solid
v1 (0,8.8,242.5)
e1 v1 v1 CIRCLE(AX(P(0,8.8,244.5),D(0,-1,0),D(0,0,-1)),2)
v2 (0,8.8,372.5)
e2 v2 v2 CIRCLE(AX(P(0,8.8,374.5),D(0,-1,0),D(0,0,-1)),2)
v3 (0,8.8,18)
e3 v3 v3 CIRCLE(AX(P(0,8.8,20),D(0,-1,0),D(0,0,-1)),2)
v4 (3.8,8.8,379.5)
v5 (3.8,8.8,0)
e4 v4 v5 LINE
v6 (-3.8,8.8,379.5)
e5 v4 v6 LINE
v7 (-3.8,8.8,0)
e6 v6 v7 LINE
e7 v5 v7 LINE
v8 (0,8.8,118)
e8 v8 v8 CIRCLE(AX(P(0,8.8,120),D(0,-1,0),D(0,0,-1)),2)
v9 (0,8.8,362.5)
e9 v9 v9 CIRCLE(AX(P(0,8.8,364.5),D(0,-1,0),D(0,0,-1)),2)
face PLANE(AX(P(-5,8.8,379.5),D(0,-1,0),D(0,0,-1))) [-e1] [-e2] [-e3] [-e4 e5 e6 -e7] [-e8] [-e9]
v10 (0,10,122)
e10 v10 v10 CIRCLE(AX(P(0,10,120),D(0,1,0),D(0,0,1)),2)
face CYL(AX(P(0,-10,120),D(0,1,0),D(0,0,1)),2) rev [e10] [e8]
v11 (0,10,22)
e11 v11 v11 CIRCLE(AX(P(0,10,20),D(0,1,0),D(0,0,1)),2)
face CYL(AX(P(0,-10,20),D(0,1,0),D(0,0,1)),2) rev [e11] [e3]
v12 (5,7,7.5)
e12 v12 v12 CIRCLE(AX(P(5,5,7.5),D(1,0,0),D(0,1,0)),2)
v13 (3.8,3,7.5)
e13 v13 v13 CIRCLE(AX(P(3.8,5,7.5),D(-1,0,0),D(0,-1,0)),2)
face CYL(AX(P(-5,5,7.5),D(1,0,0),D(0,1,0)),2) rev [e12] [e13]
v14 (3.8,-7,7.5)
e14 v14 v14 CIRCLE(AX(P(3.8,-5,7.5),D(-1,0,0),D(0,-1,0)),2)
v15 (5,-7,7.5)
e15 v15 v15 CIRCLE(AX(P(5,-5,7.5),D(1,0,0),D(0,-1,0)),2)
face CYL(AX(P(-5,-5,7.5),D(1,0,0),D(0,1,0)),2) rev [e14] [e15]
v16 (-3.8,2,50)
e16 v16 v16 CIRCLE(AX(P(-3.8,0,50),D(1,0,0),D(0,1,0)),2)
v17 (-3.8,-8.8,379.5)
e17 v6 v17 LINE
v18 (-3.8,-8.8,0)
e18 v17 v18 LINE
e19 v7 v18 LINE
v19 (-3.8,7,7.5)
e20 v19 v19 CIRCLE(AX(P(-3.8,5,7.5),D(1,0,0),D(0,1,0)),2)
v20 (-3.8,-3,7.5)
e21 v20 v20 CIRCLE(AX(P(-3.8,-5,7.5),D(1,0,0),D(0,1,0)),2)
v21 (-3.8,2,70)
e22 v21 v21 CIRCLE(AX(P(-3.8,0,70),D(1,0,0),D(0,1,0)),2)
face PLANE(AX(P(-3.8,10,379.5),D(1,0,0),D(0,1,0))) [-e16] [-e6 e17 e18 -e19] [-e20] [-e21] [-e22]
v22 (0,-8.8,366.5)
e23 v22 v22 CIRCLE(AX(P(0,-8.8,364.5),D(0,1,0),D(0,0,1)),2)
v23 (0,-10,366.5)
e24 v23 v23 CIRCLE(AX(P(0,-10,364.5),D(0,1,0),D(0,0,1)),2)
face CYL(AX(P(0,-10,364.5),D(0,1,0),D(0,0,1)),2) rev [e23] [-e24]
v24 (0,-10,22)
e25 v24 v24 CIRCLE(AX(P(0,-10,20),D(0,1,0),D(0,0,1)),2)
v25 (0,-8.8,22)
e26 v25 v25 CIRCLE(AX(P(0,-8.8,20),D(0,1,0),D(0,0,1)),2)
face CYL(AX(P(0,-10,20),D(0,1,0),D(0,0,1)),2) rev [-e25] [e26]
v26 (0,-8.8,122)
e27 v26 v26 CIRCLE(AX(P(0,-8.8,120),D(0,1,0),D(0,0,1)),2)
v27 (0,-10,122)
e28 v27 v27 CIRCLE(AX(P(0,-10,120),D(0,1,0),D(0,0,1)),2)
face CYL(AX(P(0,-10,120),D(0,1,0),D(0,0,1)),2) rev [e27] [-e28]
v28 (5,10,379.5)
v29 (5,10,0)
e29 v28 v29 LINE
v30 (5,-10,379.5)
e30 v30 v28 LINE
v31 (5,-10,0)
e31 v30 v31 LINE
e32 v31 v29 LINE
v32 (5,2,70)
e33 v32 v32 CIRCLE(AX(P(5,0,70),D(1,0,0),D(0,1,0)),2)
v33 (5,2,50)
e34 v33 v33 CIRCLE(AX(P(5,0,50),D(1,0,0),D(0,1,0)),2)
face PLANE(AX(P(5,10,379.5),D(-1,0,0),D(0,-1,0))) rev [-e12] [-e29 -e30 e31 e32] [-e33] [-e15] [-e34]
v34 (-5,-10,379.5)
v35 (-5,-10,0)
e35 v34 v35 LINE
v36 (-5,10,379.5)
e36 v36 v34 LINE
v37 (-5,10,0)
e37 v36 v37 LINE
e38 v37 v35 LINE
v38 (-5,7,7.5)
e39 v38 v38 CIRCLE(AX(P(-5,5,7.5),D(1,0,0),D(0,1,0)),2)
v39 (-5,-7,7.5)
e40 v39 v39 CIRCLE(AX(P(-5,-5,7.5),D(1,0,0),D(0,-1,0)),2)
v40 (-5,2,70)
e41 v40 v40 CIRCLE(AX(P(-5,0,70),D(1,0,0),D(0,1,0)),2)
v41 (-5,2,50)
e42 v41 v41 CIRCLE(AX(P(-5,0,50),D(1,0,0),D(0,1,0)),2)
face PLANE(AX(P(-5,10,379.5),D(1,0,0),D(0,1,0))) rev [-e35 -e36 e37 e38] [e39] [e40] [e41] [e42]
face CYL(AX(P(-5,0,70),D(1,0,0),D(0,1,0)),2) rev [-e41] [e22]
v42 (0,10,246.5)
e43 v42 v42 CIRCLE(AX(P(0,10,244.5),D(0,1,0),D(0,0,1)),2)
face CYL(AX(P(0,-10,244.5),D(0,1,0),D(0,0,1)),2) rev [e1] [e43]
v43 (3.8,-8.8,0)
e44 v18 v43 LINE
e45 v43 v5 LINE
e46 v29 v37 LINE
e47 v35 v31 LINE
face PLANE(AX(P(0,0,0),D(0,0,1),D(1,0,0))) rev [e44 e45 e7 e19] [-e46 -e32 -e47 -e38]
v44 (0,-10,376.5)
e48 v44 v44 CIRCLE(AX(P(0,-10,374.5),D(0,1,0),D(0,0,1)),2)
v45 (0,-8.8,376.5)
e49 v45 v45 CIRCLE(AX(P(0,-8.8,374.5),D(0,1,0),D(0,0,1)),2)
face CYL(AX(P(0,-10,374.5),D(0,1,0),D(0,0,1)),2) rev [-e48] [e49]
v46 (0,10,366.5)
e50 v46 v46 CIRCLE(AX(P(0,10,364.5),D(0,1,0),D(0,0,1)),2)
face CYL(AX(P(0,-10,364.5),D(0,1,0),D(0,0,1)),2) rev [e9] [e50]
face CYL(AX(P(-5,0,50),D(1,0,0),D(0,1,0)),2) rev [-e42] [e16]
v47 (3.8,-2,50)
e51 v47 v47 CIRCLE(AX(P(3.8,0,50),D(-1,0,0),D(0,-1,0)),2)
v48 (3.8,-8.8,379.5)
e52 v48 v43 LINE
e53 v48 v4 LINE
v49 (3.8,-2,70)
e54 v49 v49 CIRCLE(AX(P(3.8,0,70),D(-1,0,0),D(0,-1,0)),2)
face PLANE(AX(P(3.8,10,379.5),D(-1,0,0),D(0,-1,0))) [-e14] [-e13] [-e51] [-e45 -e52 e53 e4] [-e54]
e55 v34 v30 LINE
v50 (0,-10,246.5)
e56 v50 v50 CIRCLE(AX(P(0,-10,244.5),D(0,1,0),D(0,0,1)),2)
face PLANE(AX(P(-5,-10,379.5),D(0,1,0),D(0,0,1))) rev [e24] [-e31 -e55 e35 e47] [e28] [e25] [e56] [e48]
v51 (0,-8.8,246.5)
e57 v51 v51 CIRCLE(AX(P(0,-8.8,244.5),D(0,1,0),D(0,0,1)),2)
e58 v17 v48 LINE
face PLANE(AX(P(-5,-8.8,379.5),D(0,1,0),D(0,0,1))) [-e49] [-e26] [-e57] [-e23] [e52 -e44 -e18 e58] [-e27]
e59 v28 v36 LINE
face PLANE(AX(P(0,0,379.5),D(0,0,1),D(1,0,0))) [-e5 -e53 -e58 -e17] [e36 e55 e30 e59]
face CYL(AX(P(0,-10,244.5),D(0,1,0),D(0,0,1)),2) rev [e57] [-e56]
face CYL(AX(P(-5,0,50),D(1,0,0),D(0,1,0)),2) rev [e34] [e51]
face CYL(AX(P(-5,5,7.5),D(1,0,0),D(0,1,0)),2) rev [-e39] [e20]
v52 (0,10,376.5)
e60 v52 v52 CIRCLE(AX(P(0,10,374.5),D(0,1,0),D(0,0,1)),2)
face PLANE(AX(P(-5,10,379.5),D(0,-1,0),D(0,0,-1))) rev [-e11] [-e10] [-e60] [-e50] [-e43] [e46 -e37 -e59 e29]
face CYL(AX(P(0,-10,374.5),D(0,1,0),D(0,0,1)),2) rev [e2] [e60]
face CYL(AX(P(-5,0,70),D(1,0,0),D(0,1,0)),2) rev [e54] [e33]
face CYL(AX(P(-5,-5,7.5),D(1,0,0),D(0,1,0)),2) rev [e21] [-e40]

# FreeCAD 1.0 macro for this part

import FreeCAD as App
import Part
import Sketcher
from FreeCAD import Vector


def add_polygon(sketch, points):
    """Adds a closed chain of lines whose ends are joined by coincident constraints."""
    first, n = sketch.GeometryCount, len(points)
    for a, b in zip(points, points[1:] + points[:1]):
        sketch.addGeometry(Part.LineSegment(App.Vector(*a, 0), App.Vector(*b, 0)), False)
    for i in range(n):
        sketch.addConstraint(Sketcher.Constraint("Coincident", first + i, 2, first + (i + 1) % n, 1))

doc = App.newDocument("Part")
body = doc.addObject("PartDesign::Body", "Body")

# Sketch on XY plane
sketch1 = body.newObject("Sketcher::SketchObject", "Sketch")
sketch1.AttachmentSupport = (doc.getObject("XY_Plane"), [""])
sketch1.MapMode = "FlatFace"
add_polygon(sketch1, [(-5, 10), (-5, -10), (5, -10), (5, 10)])  # lines 0-3
add_polygon(sketch1, [(4, -9), (-4, -9), (-4, 9), (4, 9)])  # lines 4-7
sketch1.addConstraint([
    Sketcher.Constraint("Vertical", 0),
    Sketcher.Constraint("Horizontal", 1),
    Sketcher.Constraint("Vertical", 2),
    Sketcher.Constraint("Horizontal", 3),
    Sketcher.Constraint("Horizontal", 4),
    Sketcher.Constraint("Vertical", 5),
    Sketcher.Constraint("Horizontal", 6),
    Sketcher.Constraint("Vertical", 7),
    Sketcher.Constraint("Symmetric", 0, 2, 2, 2, -1, 1),
    Sketcher.Constraint("Symmetric", 4, 2, 6, 2, -1, 1),
    Sketcher.Constraint("DistanceX", 1, 1, 1, 2, 10.0),
    Sketcher.Constraint("DistanceY", 0, 2, 0, 1, 20.0),
    Sketcher.Constraint("DistanceX", 4, 2, 4, 1, 7.6),
    Sketcher.Constraint("DistanceY", 5, 1, 5, 2, 17.6),
])
pad1 = body.newObject("PartDesign::Pad", "Pad")
pad1.Profile = sketch1
pad1.Length = 379.5

# Sketch on XZ plane
sketch2 = body.newObject("Sketcher::SketchObject", "Sketch001")
sketch2.AttachmentSupport = (doc.getObject("XZ_Plane"), [""])
sketch2.MapMode = "FlatFace"
sketch2.AttachmentOffset = App.Placement(Vector(0, 0, -10), App.Rotation())
sketch2.addGeometry([
    Part.Circle(Vector(0, 364.5, 0), Vector(0, 0, 1), 2),  # 0
    Part.Circle(Vector(0, 374.5, 0), Vector(0, 0, 1), 2),  # 1
    Part.Circle(Vector(0, 244.5, 0), Vector(0, 0, 1), 2),  # 2
    Part.Circle(Vector(0, 120, 0), Vector(0, 0, 1), 2),  # 3
    Part.Circle(Vector(0, 20, 0), Vector(0, 0, 1), 2),  # 4
], False)
sketch2.addConstraint([
    Sketcher.Constraint("Equal", 0, 1),
    Sketcher.Constraint("Equal", 1, 2),
    Sketcher.Constraint("Equal", 2, 3),
    Sketcher.Constraint("Equal", 3, 4),
    Sketcher.Constraint("PointOnObject", 0, 3, -2),
    Sketcher.Constraint("PointOnObject", 1, 3, -2),
    Sketcher.Constraint("PointOnObject", 2, 3, -2),
    Sketcher.Constraint("PointOnObject", 3, 3, -2),
    Sketcher.Constraint("PointOnObject", 4, 3, -2),
    Sketcher.Constraint("Diameter", 0, 4.0),
    Sketcher.Constraint("DistanceY", -1, 1, 3, 3, 120.0),
    Sketcher.Constraint("DistanceY", -1, 1, 4, 3, 20.0),
    Sketcher.Constraint("DistanceY", 0, 3, 1, 3, 10.0),
    Sketcher.Constraint("DistanceY", 2, 3, 0, 3, 120.0),
    Sketcher.Constraint("DistanceY", -1, 1, 0, 3, 364.5),
])
pocket1 = body.newObject("PartDesign::Pocket", "Pocket")
pocket1.Profile = sketch2
pocket1.Type = "ThroughAll"
pocket1.Reversed = True

# Sketch on YZ plane
sketch3 = body.newObject("Sketcher::SketchObject", "Sketch002")
sketch3.AttachmentSupport = (doc.getObject("YZ_Plane"), [""])
sketch3.MapMode = "FlatFace"
sketch3.AttachmentOffset = App.Placement(Vector(0, 0, 5), App.Rotation())
sketch3.addGeometry([
    Part.Circle(Vector(5, 7.5, 0), Vector(0, 0, 1), 2),
    Part.Circle(Vector(-5, 7.5, 0), Vector(0, 0, 1), 2),
    Part.Circle(Vector(0, 70, 0), Vector(0, 0, 1), 2),
    Part.Circle(Vector(0, 50, 0), Vector(0, 0, 1), 2),
], False)
sketch3.addConstraint([
    Sketcher.Constraint("Equal", 0, 1),
    Sketcher.Constraint("Equal", 1, 2),
    Sketcher.Constraint("Equal", 2, 3),
    Sketcher.Constraint("Symmetric", 0, 3, 1, 3, -2),
    Sketcher.Constraint("PointOnObject", 2, 3, -2),
    Sketcher.Constraint("PointOnObject", 3, 3, -2),
    Sketcher.Constraint("Diameter", 0, 4.0),
    Sketcher.Constraint("DistanceX", -1, 1, 0, 3, 5.0),
    Sketcher.Constraint("DistanceY", -1, 1, 2, 3, 70.0),
    Sketcher.Constraint("DistanceY", -1, 1, 3, 3, 50.0),
    Sketcher.Constraint("DistanceY", -1, 1, 0, 3, 7.5),
])
pocket2 = body.newObject("PartDesign::Pocket", "Pocket001")
pocket2.Profile = sketch3
pocket2.Type = "ThroughAll"

doc.recompute()
